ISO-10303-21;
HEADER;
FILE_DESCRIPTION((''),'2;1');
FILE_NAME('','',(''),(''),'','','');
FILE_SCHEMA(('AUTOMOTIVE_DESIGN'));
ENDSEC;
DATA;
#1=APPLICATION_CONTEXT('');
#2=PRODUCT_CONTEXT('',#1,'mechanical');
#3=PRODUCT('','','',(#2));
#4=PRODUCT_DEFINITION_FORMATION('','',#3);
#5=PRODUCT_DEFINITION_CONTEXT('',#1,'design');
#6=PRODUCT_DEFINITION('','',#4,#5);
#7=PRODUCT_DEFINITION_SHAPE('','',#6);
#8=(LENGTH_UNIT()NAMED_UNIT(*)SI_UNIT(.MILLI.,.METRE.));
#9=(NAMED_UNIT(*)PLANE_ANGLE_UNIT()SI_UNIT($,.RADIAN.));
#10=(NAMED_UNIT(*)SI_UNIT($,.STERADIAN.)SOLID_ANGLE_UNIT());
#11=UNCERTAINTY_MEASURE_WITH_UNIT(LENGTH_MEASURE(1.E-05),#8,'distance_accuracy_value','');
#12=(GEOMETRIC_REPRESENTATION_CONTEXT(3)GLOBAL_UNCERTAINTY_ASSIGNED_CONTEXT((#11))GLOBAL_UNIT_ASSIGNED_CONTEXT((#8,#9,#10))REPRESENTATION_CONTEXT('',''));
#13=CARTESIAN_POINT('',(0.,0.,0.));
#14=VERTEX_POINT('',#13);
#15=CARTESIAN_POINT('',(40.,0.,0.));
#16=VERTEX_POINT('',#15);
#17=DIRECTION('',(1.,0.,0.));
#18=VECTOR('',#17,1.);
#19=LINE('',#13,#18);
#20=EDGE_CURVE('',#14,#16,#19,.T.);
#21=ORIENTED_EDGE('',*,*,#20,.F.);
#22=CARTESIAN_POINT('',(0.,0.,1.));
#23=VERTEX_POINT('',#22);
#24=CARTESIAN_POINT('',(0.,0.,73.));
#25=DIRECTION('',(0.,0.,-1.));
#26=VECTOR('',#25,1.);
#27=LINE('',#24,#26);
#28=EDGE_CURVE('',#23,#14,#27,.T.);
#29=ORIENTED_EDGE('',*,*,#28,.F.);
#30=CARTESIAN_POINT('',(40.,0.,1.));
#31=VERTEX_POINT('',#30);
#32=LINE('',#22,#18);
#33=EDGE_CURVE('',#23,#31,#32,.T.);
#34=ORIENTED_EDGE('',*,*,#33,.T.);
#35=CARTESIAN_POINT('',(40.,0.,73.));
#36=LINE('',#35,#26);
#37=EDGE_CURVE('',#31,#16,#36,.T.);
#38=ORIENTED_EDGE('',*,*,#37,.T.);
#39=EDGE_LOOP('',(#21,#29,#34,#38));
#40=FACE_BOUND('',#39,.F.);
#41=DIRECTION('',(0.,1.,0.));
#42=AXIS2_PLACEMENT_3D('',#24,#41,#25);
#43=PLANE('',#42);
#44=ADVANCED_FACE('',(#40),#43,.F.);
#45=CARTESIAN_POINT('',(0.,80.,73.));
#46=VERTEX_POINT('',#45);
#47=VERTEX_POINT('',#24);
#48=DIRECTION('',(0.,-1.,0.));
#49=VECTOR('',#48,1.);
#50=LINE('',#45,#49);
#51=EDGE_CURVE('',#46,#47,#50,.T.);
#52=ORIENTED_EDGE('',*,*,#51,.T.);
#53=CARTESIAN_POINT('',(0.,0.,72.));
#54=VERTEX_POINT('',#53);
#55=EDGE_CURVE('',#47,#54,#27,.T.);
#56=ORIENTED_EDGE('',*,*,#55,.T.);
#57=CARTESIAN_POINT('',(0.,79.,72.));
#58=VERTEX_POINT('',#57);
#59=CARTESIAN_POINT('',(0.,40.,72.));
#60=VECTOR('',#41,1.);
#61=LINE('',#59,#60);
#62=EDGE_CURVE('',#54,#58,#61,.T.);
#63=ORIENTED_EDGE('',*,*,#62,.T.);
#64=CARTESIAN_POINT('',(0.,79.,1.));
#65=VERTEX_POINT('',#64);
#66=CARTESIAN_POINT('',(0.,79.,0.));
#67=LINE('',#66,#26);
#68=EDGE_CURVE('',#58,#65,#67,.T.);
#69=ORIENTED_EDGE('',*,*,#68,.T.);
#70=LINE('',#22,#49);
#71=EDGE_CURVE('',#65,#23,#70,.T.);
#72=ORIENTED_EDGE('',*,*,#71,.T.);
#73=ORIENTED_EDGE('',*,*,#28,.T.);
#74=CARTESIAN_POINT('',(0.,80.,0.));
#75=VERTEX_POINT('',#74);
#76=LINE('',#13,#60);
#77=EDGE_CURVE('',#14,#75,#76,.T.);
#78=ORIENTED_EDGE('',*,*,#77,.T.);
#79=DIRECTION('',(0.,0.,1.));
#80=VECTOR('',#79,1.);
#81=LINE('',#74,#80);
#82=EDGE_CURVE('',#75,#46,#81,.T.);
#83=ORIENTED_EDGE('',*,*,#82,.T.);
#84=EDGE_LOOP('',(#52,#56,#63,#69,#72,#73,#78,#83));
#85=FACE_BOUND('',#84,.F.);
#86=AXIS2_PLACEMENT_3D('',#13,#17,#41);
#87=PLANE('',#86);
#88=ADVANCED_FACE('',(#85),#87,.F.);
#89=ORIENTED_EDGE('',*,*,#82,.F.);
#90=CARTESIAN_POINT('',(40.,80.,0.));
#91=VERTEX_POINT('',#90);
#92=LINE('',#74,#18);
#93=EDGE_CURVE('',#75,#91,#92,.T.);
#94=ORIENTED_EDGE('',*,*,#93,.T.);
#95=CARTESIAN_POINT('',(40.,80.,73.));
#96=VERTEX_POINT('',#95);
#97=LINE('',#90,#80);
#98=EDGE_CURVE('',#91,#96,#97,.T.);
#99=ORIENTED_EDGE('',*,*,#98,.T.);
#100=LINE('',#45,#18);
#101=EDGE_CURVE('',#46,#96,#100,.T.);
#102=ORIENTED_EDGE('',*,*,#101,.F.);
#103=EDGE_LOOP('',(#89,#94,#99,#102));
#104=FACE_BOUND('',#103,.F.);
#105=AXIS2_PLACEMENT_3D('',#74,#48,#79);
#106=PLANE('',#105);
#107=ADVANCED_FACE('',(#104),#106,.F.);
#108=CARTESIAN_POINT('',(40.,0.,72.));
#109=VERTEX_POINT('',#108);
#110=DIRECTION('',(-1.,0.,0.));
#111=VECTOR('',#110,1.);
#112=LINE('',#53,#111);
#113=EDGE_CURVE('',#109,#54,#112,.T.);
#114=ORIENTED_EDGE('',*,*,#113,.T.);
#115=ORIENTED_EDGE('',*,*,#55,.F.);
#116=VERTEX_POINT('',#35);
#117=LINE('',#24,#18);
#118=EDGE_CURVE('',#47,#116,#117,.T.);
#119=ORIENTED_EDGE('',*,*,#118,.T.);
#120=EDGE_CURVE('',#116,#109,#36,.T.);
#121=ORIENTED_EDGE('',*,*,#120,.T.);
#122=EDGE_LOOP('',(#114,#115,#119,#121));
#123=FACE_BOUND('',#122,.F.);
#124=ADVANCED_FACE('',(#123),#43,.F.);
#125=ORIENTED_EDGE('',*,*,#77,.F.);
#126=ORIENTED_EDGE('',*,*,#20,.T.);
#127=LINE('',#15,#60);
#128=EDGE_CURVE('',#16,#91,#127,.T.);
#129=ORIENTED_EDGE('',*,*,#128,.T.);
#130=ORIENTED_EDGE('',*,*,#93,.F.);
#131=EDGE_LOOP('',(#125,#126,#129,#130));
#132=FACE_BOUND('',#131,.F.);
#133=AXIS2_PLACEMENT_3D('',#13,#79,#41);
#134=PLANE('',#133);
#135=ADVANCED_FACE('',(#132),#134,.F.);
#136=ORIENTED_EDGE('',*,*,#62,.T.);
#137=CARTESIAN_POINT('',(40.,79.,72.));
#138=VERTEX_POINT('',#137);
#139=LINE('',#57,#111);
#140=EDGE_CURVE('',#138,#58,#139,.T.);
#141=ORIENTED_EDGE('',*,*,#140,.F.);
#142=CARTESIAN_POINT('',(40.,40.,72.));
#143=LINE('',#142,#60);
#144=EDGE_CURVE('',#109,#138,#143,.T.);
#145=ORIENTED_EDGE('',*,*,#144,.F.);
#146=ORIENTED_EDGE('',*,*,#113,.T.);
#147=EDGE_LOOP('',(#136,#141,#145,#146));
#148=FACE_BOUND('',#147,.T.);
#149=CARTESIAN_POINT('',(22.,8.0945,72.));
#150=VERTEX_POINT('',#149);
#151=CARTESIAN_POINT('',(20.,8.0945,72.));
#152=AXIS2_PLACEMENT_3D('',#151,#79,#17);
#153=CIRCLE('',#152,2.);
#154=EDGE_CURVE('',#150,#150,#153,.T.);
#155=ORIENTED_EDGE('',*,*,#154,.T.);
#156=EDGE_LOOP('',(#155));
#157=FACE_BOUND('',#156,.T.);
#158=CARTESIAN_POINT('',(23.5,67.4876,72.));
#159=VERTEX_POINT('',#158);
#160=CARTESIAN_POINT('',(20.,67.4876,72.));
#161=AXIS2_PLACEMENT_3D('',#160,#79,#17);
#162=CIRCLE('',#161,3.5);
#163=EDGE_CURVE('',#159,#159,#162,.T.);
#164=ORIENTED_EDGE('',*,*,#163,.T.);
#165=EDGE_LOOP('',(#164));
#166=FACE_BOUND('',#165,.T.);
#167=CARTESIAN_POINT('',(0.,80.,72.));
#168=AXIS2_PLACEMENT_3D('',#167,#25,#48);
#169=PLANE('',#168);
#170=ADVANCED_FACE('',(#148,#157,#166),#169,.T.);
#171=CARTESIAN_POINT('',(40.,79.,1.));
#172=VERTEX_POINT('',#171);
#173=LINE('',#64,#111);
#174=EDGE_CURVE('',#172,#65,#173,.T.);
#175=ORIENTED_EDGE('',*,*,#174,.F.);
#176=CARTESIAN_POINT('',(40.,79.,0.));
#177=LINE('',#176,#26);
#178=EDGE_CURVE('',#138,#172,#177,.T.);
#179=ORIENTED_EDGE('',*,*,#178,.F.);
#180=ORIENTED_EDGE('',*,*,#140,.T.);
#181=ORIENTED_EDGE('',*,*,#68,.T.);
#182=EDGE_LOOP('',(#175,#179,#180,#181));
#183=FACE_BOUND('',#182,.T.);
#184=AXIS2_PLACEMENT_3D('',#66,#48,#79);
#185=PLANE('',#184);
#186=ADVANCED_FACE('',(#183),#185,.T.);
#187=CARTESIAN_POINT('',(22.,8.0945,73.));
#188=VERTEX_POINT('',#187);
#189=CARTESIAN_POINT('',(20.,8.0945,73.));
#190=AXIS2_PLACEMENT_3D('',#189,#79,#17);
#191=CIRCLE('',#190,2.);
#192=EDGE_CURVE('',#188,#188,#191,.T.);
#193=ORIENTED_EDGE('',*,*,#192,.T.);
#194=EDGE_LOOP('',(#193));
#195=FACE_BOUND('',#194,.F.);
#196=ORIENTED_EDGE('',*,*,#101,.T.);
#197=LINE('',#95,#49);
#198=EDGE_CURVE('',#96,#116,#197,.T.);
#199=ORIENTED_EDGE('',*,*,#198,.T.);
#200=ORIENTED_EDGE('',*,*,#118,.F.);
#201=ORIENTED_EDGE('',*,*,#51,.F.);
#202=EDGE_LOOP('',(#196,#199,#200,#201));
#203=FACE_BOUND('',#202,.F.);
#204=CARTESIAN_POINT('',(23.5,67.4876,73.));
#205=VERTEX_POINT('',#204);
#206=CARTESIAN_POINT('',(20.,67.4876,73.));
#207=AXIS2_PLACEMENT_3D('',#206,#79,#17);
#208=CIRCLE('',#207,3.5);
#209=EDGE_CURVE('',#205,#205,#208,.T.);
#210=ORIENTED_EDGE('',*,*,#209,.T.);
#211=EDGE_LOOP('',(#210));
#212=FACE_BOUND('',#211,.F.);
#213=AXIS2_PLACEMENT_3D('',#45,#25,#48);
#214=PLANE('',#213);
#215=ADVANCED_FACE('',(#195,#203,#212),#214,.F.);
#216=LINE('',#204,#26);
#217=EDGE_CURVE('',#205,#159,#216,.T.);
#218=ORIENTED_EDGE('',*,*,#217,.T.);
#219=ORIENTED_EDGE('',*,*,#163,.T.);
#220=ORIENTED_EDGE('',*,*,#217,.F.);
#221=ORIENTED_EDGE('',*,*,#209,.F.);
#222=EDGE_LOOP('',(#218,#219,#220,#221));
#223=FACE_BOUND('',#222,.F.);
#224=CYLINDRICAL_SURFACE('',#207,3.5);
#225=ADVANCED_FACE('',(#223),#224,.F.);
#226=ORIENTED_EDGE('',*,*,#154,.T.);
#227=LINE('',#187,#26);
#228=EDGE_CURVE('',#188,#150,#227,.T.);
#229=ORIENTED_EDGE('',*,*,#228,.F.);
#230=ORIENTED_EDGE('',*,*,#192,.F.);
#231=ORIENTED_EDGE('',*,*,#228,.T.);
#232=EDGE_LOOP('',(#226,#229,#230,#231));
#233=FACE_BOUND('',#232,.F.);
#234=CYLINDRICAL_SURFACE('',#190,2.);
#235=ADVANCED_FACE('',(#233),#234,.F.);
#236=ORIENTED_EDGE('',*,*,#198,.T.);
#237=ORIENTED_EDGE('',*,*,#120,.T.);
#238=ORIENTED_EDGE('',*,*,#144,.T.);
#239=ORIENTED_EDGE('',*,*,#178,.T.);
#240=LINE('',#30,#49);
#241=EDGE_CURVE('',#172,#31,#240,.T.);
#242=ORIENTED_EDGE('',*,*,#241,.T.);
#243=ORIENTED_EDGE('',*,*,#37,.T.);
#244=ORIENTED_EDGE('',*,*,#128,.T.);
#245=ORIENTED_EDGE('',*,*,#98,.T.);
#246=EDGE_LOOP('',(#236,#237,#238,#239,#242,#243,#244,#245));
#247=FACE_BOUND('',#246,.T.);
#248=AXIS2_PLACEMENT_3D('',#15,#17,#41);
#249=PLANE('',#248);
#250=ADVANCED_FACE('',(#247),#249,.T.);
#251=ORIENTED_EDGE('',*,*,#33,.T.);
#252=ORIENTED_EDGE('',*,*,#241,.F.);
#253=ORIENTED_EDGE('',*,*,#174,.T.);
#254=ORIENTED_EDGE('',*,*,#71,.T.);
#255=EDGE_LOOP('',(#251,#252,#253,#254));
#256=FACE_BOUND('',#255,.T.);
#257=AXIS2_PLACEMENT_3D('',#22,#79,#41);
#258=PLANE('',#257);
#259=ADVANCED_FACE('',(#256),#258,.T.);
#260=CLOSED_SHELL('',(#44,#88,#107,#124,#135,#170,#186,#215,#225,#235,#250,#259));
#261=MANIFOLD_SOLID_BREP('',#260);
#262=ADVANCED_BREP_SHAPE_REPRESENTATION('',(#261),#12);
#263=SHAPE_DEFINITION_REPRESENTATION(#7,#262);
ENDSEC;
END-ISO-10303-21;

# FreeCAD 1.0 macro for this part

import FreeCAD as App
import Part
import Sketcher

V = App.Vector


def faces_at(feature, points):
    """Names of the faces that lie closest to the given points."""
    faces = feature.Shape.Faces
    near = lambda p: min(range(len(faces)), key=lambda i: faces[i].distToShape(Part.Vertex(*p))[0])
    return sorted({f"Face{near(p) + 1}" for p in points})

doc = App.newDocument("Part")
params = doc.addObject("Spreadsheet::Sheet", "Params")
for row, (alias, value) in enumerate([
    ("sketch1_width", "80 mm"),
    ("sketch1_height", "73 mm"),
    ("pad1_length", "40 mm"),
    ("thickness_wall", "1 mm"),
    ("sketch2_diameter", "4 mm"),
    ("pocket1_length", "1 mm"),
    ("sketch3_diameter", "7 mm"),
    ("pocket2_length", "1 mm"),
], start=1):
    params.set(f"A{row}", alias)
    params.set(f"B{row}", "=" + value)
    params.setAlias(f"B{row}", alias)

body = doc.addObject("PartDesign::Body", "Body")

sketch1 = body.newObject("Sketcher::SketchObject", "Sketch")
sketch1.AttachmentSupport = (doc.getObject("YZ_Plane"), [""])
sketch1.MapMode = "FlatFace"
sketch1.addGeometry(Part.LineSegment(V(0, 73, 0), V(0, 0, 0)), False)
sketch1.addGeometry(Part.LineSegment(V(0, 0, 0), V(80, 0, 0)), False)
sketch1.addGeometry(Part.LineSegment(V(80, 0, 0), V(80, 73, 0)), False)
sketch1.addGeometry(Part.LineSegment(V(80, 73, 0), V(0, 73, 0)), False)
sketch1.addConstraint(Sketcher.Constraint("Coincident", 0, 2, 1, 1))
sketch1.addConstraint(Sketcher.Constraint("Coincident", 1, 2, 2, 1))
sketch1.addConstraint(Sketcher.Constraint("Coincident", 2, 2, 3, 1))
sketch1.addConstraint(Sketcher.Constraint("Coincident", 3, 2, 0, 1))
sketch1.addConstraint(Sketcher.Constraint("Vertical", 0))
sketch1.addConstraint(Sketcher.Constraint("Horizontal", 1))
sketch1.addConstraint(Sketcher.Constraint("Vertical", 2))
sketch1.addConstraint(Sketcher.Constraint("Horizontal", 3))
sketch1.addConstraint(Sketcher.Constraint("Coincident", 0, 2, -1, 1))
sketch1.addConstraint(Sketcher.Constraint("DistanceX", 1, 1, 1, 2, 80.0))
sketch1.addConstraint(Sketcher.Constraint("DistanceY", 0, 2, 0, 1, 73.0))
sketch1.setExpression("Constraints[9]", "Params.sketch1_width")
sketch1.setExpression("Constraints[10]", "Params.sketch1_height")
pad1 = body.newObject("PartDesign::Pad", "Pad")
pad1.Profile = sketch1
pad1.setExpression("Length", "Params.pad1_length")
doc.recompute()

thickness = body.newObject("PartDesign::Thickness", "Thickness")
thickness.Base = (pad1, faces_at(pad1, [(26.667, 0, 48.667), (0, 53.333, 24.333), (40, 53.333, 24.333)]))
thickness.setExpression("Value", "Params.thickness_wall")
thickness.Reversed = True
thickness.Join = "Intersection"

sketch2 = body.newObject("Sketcher::SketchObject", "Sketch001")
sketch2.AttachmentSupport = (doc.getObject("XY_Plane"), [""])
sketch2.MapMode = "FlatFace"
sketch2.AttachmentOffset = App.Placement(V(0, 0, 73), App.Rotation())
sketch2.addGeometry(Part.Circle(V(20, 8.0945, 0), V(0, 0, 1), 2), False)
sketch2.addConstraint(Sketcher.Constraint("Diameter", 0, 4.0))
sketch2.addConstraint(Sketcher.Constraint("DistanceX", -1, 1, 0, 3, 20.0))
sketch2.addConstraint(Sketcher.Constraint("DistanceY", -1, 1, 0, 3, 8.0945))
sketch2.setExpression("Constraints[0]", "Params.sketch2_diameter")
pocket1 = body.newObject("PartDesign::Pocket", "Pocket")
pocket1.Profile = sketch2
pocket1.setExpression("Length", "Params.pocket1_length")

sketch3 = body.newObject("Sketcher::SketchObject", "Sketch002")
sketch3.AttachmentSupport = (doc.getObject("XY_Plane"), [""])
sketch3.MapMode = "FlatFace"
sketch3.AttachmentOffset = App.Placement(V(0, 0, 73), App.Rotation())
sketch3.addGeometry(Part.Circle(V(20, 67.4876, 0), V(0, 0, 1), 3.5), False)
sketch3.addConstraint(Sketcher.Constraint("Diameter", 0, 7.0))
sketch3.addConstraint(Sketcher.Constraint("DistanceX", -1, 1, 0, 3, 20.0))
sketch3.addConstraint(Sketcher.Constraint("DistanceY", -1, 1, 0, 3, 67.4876))
sketch3.setExpression("Constraints[0]", "Params.sketch3_diameter")
pocket2 = body.newObject("PartDesign::Pocket", "Pocket001")
pocket2.Profile = sketch3
pocket2.setExpression("Length", "Params.pocket2_length")

doc.recompute()
